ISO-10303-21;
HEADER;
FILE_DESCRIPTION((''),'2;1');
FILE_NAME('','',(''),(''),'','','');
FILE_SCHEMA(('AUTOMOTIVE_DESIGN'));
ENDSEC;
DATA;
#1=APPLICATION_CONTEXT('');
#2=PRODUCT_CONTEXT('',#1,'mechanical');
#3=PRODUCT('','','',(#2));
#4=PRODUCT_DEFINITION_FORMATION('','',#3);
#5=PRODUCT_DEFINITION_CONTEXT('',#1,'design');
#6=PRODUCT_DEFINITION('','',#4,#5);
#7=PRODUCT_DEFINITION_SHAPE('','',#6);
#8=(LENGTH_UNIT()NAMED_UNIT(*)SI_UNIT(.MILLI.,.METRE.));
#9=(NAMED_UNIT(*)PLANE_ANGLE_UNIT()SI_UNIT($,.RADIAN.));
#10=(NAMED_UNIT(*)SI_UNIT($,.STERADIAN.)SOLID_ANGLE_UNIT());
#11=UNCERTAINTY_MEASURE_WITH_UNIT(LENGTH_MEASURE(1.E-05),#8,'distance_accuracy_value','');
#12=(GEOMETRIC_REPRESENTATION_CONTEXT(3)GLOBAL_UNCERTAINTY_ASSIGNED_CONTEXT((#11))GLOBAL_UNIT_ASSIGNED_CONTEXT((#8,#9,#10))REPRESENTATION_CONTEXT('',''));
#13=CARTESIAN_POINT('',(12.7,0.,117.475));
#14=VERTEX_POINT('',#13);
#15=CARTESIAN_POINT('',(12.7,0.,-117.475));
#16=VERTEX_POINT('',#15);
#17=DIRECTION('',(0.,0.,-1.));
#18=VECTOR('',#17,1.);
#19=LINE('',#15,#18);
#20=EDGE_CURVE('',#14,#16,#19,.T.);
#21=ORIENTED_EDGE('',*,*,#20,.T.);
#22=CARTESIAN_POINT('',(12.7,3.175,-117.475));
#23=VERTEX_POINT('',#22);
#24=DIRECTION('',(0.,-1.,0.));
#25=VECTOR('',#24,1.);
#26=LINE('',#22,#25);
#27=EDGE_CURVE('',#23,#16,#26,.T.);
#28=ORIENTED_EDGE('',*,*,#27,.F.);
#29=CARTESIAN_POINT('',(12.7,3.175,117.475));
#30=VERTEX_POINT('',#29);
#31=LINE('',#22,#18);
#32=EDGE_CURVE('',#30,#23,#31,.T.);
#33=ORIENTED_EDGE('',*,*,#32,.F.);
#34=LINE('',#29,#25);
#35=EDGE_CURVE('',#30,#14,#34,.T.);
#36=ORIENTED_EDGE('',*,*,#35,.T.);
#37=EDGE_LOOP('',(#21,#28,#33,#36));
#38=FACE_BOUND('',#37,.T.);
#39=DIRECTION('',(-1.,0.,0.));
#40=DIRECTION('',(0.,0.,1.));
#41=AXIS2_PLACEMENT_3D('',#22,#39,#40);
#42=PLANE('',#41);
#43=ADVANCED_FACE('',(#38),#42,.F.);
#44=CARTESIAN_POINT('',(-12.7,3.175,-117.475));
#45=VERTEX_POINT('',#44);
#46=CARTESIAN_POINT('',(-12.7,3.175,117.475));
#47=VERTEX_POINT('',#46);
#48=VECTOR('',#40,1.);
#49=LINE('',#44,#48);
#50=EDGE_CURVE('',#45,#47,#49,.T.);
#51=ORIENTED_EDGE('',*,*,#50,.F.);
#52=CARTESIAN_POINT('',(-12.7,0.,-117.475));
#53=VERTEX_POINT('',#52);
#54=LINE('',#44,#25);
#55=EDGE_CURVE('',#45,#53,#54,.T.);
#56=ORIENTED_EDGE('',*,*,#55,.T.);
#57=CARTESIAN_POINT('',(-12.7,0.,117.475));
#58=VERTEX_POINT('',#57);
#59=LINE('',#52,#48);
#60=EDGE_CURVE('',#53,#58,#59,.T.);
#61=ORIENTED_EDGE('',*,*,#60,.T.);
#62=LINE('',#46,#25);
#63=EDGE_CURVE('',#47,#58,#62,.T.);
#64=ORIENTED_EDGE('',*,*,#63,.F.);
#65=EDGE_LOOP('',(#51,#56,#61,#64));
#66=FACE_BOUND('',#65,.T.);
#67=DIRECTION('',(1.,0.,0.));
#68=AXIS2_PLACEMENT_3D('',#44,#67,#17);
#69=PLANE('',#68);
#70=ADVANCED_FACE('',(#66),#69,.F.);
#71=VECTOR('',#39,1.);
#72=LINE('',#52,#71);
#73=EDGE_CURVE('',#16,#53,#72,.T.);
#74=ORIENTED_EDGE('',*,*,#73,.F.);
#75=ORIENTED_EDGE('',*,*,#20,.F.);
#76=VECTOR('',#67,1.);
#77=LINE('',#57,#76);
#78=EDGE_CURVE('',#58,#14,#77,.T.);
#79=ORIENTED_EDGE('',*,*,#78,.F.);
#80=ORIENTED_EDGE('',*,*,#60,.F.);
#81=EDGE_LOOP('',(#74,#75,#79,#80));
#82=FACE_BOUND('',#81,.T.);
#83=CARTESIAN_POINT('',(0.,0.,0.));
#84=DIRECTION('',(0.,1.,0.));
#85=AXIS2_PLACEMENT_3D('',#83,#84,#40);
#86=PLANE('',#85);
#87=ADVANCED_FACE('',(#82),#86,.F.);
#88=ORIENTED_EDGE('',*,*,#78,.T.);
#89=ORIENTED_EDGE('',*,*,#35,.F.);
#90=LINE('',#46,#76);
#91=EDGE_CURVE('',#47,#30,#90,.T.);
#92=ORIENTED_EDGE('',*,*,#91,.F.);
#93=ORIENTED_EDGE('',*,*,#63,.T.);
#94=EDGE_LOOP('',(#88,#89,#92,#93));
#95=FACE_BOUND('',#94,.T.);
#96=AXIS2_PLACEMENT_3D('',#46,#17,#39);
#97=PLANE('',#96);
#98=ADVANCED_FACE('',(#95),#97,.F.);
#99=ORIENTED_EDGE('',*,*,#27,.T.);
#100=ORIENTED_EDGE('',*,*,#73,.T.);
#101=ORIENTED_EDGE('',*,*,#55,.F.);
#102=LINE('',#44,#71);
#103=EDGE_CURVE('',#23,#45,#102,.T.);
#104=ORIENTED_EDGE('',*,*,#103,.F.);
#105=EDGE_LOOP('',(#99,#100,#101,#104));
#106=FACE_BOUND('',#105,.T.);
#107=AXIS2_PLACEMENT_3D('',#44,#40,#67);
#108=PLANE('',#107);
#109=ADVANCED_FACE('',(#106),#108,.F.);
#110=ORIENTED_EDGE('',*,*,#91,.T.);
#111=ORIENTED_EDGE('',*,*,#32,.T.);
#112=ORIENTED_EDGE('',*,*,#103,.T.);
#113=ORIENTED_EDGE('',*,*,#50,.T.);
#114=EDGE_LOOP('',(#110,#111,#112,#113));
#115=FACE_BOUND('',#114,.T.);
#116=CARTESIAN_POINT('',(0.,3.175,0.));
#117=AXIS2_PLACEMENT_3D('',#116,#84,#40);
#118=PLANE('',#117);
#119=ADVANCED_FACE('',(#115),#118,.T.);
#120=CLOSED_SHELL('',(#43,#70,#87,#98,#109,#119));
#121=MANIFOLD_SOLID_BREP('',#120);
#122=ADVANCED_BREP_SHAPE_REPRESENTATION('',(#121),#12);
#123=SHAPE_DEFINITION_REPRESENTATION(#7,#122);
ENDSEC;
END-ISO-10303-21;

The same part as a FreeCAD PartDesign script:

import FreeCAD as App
import Part
import Sketcher

V = App.Vector
Q = App.Units.Quantity

doc = App.newDocument("Part")
body = doc.addObject("PartDesign::Body", "Body")

sketch1 = body.newObject("Sketcher::SketchObject", "Sketch")
sketch1.AttachmentSupport = (doc.getObject("XZ_Plane"), [""])
sketch1.MapMode = "FlatFace"
sketch1.addGeometry([
    Part.LineSegment(V(-12.7, -117.475, 0), V(-12.7, 117.475, 0)),
    Part.LineSegment(V(-12.7, 117.475, 0), V(12.7, 117.475, 0)),
    Part.LineSegment(V(12.7, 117.475, 0), V(12.7, -117.475, 0)),
    Part.LineSegment(V(12.7, -117.475, 0), V(-12.7, -117.475, 0)),
], False)
sketch1.addConstraint([
    Sketcher.Constraint("Coincident", 0, 2, 1, 1),
    Sketcher.Constraint("Coincident", 1, 2, 2, 1),
    Sketcher.Constraint("Coincident", 2, 2, 3, 1),
    Sketcher.Constraint("Coincident", 3, 2, 0, 1),
    Sketcher.Constraint("Vertical", 0),
    Sketcher.Constraint("Horizontal", 1),
    Sketcher.Constraint("Vertical", 2),
    Sketcher.Constraint("Horizontal", 3),
    Sketcher.Constraint("Symmetric", 0, 2, 2, 2, -1, 1),
    Sketcher.Constraint("DistanceX", 1, 1, 1, 2, Q("1 in")),
    Sketcher.Constraint("DistanceY", 0, 1, 0, 2, Q("9.25 in")),
])
pad1 = body.newObject("PartDesign::Pad", "Pad")
pad1.Profile = sketch1
pad1.Length = Q("0.125 in")
pad1.Reversed = True

doc.recompute()
